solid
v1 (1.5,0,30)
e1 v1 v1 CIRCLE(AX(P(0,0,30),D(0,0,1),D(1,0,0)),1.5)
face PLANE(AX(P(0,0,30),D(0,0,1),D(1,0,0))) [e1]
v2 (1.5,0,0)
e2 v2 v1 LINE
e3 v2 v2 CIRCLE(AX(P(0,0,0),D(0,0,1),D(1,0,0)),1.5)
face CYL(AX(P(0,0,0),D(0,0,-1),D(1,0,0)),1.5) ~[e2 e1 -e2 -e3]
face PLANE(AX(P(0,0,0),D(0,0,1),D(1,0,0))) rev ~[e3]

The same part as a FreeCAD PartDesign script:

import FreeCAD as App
import Part
import Sketcher
Q = App.Units.Quantity

doc = App.newDocument("Part")
body = doc.addObject("PartDesign::Body", "Body")

sketch1 = body.newObject("Sketcher::SketchObject", "Sketch")
sketch1.AttachmentSupport = (doc.getObject("XY_Plane"), [""])
sketch1.MapMode = "FlatFace"
sketch1.addGeometry(Part.Circle(App.Vector(0, 0, 0), App.Vector(0, 0, 1), 1.5), False)
sketch1.addConstraint(Sketcher.Constraint("Coincident", 0, 3, -1, 1))
sketch1.addConstraint(Sketcher.Constraint("Diameter", 0, Q("3 mm")))
pad1 = body.newObject("PartDesign::Pad", "Pad")
pad1.Profile = sketch1
pad1.Length = 30

doc.recompute()
